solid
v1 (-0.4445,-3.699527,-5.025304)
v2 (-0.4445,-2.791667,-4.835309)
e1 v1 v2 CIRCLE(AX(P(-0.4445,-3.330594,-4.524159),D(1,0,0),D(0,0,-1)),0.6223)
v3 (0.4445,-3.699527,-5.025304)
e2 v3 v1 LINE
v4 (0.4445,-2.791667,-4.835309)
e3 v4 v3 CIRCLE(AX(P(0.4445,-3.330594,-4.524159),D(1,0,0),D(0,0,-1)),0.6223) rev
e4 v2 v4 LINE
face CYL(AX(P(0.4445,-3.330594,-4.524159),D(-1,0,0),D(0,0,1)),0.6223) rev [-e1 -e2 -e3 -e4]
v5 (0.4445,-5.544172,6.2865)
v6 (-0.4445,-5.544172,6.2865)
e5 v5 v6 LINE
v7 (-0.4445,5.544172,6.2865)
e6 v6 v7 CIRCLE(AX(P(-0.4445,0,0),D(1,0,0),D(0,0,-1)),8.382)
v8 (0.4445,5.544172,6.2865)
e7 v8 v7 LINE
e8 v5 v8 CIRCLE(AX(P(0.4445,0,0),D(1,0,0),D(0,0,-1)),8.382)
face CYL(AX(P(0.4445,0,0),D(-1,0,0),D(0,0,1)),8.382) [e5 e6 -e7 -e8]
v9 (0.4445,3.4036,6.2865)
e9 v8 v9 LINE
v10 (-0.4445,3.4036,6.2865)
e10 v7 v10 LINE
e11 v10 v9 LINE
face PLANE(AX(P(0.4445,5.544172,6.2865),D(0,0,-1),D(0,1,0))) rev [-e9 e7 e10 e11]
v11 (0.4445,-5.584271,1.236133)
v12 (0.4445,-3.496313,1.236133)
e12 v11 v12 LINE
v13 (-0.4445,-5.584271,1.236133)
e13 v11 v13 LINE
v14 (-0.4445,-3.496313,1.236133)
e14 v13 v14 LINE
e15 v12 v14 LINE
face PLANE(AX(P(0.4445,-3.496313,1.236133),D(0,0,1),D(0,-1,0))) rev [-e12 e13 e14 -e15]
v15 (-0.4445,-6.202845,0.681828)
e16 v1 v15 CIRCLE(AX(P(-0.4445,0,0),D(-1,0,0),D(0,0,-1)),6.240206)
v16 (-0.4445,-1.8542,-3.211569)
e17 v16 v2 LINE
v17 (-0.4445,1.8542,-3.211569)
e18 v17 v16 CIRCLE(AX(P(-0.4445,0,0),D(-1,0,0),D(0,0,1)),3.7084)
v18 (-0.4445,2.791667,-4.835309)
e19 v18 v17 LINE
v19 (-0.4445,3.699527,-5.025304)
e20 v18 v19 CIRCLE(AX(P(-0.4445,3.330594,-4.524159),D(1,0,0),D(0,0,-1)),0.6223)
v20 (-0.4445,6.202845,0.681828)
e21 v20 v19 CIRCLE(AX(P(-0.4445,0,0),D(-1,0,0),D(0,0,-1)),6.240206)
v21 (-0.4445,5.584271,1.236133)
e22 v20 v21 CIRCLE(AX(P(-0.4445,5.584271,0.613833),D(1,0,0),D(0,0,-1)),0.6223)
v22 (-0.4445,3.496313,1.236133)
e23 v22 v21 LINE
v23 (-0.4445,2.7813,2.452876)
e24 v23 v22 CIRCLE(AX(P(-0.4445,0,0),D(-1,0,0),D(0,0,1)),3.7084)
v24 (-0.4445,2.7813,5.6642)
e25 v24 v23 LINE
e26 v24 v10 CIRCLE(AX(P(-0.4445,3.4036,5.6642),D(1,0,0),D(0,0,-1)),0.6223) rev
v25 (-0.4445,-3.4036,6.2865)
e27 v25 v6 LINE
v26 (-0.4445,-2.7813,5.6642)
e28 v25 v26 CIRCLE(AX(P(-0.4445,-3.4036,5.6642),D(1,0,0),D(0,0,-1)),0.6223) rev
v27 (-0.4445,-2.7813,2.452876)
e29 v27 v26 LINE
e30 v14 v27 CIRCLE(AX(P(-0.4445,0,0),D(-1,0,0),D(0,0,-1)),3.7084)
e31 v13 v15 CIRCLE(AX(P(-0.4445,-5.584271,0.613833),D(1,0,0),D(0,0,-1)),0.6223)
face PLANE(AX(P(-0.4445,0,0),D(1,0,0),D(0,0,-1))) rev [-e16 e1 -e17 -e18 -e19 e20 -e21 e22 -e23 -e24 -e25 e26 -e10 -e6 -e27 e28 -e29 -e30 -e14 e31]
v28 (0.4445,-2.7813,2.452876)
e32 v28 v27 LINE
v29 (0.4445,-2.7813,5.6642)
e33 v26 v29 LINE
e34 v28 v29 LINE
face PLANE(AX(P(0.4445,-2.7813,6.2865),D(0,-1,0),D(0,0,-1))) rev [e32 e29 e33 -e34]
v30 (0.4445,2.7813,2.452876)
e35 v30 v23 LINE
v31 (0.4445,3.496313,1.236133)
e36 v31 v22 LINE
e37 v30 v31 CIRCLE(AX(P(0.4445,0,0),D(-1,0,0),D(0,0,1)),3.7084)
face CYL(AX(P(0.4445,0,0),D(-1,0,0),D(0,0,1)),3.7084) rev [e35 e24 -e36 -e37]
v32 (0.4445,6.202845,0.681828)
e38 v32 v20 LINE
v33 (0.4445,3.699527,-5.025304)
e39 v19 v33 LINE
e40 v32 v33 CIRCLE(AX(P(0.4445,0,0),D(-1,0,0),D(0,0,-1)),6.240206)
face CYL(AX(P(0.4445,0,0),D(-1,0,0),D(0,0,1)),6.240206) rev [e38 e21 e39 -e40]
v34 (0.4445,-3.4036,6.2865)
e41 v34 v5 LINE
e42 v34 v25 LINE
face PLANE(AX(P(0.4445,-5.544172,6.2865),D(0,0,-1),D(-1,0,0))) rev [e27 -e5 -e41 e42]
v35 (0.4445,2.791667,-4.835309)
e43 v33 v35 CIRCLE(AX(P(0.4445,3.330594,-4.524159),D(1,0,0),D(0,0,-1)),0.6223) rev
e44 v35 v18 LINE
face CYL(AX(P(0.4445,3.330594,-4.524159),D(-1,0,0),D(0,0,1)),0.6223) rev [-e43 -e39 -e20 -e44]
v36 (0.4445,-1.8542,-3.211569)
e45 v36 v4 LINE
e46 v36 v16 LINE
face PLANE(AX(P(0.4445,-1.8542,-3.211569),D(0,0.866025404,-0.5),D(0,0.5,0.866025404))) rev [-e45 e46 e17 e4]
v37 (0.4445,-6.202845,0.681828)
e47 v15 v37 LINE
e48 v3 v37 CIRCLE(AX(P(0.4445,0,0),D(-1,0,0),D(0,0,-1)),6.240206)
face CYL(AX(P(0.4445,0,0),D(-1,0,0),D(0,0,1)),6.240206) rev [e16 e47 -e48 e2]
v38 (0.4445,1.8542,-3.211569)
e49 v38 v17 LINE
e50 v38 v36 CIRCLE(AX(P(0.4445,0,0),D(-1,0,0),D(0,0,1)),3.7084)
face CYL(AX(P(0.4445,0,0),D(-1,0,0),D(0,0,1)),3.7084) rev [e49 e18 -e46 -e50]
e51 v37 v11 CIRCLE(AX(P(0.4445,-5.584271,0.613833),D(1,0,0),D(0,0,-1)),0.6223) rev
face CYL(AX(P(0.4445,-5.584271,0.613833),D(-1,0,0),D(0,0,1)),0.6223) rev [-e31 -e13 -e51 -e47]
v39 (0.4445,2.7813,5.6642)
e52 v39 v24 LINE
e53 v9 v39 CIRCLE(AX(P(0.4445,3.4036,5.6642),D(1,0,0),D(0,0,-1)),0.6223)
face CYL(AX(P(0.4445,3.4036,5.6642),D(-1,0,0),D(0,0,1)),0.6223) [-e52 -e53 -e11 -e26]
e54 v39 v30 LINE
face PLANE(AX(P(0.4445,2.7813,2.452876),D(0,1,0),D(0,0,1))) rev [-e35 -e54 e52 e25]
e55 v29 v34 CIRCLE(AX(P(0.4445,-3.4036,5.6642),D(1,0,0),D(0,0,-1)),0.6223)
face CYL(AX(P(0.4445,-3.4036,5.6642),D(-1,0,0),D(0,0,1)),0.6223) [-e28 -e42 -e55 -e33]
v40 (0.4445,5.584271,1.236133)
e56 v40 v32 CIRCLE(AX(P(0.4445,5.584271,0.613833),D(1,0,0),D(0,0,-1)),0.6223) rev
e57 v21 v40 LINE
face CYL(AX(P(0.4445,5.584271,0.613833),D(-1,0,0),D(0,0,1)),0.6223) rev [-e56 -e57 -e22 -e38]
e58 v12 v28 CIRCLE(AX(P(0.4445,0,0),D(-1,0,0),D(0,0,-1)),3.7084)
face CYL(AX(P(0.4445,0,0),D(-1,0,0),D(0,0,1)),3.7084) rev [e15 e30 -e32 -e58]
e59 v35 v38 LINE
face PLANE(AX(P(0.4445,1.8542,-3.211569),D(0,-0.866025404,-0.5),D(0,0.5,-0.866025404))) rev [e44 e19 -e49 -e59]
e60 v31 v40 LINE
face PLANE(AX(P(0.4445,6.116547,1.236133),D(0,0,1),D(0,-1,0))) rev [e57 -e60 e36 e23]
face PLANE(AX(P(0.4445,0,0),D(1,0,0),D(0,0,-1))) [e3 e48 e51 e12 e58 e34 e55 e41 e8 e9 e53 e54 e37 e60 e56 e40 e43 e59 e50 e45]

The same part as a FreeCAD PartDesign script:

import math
import FreeCAD as App
import Part
import Sketcher
Q = App.Units.Quantity


def edges_at(feature, points):
    """Names of the edges that pass closest to the given points."""
    edges = feature.Shape.Edges
    near = lambda p: min(range(len(edges)), key=lambda i: edges[i].distToShape(Part.Vertex(*p))[0])
    return sorted({f"Edge{near(p) + 1}" for p in points})

doc = App.newDocument("Part")
body = doc.addObject("PartDesign::Body", "Body")

sketch1 = doc.addObject("Sketcher::SketchObject", "Sketch")
body.addObject(sketch1)
sketch1.AttachmentSupport = (doc.YZ_Plane, [""])
sketch1.MapMode = "FlatFace"
sketch1.addGeometry([
    Part.LineSegment(App.Vector(2.8, 6.3, 0), App.Vector(2.8, 2.5, 0)),
    Part.ArcOfCircle(Part.Circle(App.Vector(0, 0, 0), App.Vector(0, 0, 1), 3.7), math.radians(19), math.radians(41)),
    Part.LineSegment(App.Vector(3.5, 1.2, 0), App.Vector(6.1, 1.2, 0)),
    Part.ArcOfCircle(Part.Circle(App.Vector(0, 0, 0), App.Vector(0, 0, 1), 6.2), math.radians(-60), math.radians(11)),
    Part.LineSegment(App.Vector(3.1, -5.4, 0), App.Vector(1.9, -3.2, 0)),
    Part.ArcOfCircle(Part.Circle(App.Vector(0, 0, 0), App.Vector(0, 0, 1), 3.7), math.radians(-120), math.radians(-60)),
    Part.LineSegment(App.Vector(-1.9, -3.2, 0), App.Vector(-3.1, -5.4, 0)),
    Part.ArcOfCircle(Part.Circle(App.Vector(0, 0, 0), App.Vector(0, 0, 1), 6.2), math.radians(169), math.radians(240)),
    Part.LineSegment(App.Vector(-6.1, 1.2, 0), App.Vector(-3.5, 1.2, 0)),
    Part.ArcOfCircle(Part.Circle(App.Vector(0, 0, 0), App.Vector(0, 0, 1), 3.7), math.radians(139), math.radians(161)),
    Part.LineSegment(App.Vector(-2.8, 2.5, 0), App.Vector(-2.8, 6.3, 0)),
    Part.LineSegment(App.Vector(-2.8, 6.3, 0), App.Vector(-5.5, 6.3, 0)),
    Part.ArcOfCircle(Part.Circle(App.Vector(0, 0, 0), App.Vector(0, 0, 1), 8.4), math.radians(131), math.radians(409)),
    Part.LineSegment(App.Vector(5.5, 6.3, 0), App.Vector(2.8, 6.3, 0)),
], False)
sketch1.addConstraint([
    Sketcher.Constraint("Coincident", 0, 2, 1, 2),
    Sketcher.Constraint("Coincident", 1, 1, 2, 1),
    Sketcher.Constraint("Coincident", 2, 2, 3, 2),
    Sketcher.Constraint("Coincident", 3, 1, 4, 1),
    Sketcher.Constraint("Coincident", 4, 2, 5, 2),
    Sketcher.Constraint("Coincident", 5, 1, 6, 1),
    Sketcher.Constraint("Coincident", 6, 2, 7, 2),
    Sketcher.Constraint("Coincident", 7, 1, 8, 1),
    Sketcher.Constraint("Coincident", 8, 2, 9, 2),
    Sketcher.Constraint("Coincident", 9, 1, 10, 1),
    Sketcher.Constraint("Coincident", 10, 2, 11, 1),
    Sketcher.Constraint("Coincident", 11, 2, 12, 1),
    Sketcher.Constraint("Coincident", 12, 2, 13, 1),
    Sketcher.Constraint("Coincident", 13, 2, 0, 1),
    Sketcher.Constraint("Vertical", 0),
    Sketcher.Constraint("Horizontal", 2),
    Sketcher.Constraint("Horizontal", 8),
    Sketcher.Constraint("Vertical", 10),
    Sketcher.Constraint("Horizontal", 11),
    Sketcher.Constraint("Horizontal", 13),
    Sketcher.Constraint("Coincident", 1, 3, -1, 1),
    Sketcher.Constraint("Coincident", 3, 3, -1, 1),
    Sketcher.Constraint("Coincident", 5, 3, -1, 1),
    Sketcher.Constraint("Coincident", 7, 3, -1, 1),
    Sketcher.Constraint("Coincident", 9, 3, -1, 1),
    Sketcher.Constraint("Coincident", 12, 3, -1, 1),
    Sketcher.Constraint("Equal", 1, 5),
    Sketcher.Constraint("Equal", 3, 7),
    Sketcher.Constraint("Equal", 5, 9),
    Sketcher.Constraint("Symmetric", 10, 2, 13, 2, -2),
    Sketcher.Constraint("Horizontal", 4, 2, 5, 1),
    Sketcher.Constraint("Horizontal", 3, 1, 6, 2),
    Sketcher.Constraint("Horizontal", 2, 2, 7, 1),
    Sketcher.Constraint("Radius", 12, Q("0.33 in")),
    Sketcher.Constraint("Angle", 4, Q("120 deg")),
    Sketcher.Constraint("Radius", 1, Q("0.146 in")),
    Sketcher.Constraint("DistanceX", -1, 1, 4, 2, Q("0.073 in")),
    Sketcher.Constraint("DistanceX", 10, 2, 0, 2, Q("0.219 in")),
    Sketcher.Constraint("DistanceY", -1, 1, 10, 2, Q("0.2475 in")),
    Sketcher.Constraint("Radius", 3, 6.240206),
    Sketcher.Constraint("DistanceY", 5, 1, 7, 1, 4.447702),
])
pad1 = doc.addObject("PartDesign::Pad", "Pad")
body.addObject(pad1)
pad1.Profile = sketch1
pad1.Length = Q("0.035 in")
pad1.Midplane = True
doc.recompute()

fillet = doc.addObject("PartDesign::Fillet", "Fillet")
body.addObject(fillet)
fillet.Base = (pad1, edges_at(pad1, [
    (0, -2.781, 6.287),
    (0, -6.117, 1.236),
    (0, -3.12, -5.404),
    (0, 3.12, -5.404),
    (0, 6.117, 1.236),
    (0, 2.781, 6.287),
]))
fillet.Radius = Q("0.0245 in")

doc.recompute()
